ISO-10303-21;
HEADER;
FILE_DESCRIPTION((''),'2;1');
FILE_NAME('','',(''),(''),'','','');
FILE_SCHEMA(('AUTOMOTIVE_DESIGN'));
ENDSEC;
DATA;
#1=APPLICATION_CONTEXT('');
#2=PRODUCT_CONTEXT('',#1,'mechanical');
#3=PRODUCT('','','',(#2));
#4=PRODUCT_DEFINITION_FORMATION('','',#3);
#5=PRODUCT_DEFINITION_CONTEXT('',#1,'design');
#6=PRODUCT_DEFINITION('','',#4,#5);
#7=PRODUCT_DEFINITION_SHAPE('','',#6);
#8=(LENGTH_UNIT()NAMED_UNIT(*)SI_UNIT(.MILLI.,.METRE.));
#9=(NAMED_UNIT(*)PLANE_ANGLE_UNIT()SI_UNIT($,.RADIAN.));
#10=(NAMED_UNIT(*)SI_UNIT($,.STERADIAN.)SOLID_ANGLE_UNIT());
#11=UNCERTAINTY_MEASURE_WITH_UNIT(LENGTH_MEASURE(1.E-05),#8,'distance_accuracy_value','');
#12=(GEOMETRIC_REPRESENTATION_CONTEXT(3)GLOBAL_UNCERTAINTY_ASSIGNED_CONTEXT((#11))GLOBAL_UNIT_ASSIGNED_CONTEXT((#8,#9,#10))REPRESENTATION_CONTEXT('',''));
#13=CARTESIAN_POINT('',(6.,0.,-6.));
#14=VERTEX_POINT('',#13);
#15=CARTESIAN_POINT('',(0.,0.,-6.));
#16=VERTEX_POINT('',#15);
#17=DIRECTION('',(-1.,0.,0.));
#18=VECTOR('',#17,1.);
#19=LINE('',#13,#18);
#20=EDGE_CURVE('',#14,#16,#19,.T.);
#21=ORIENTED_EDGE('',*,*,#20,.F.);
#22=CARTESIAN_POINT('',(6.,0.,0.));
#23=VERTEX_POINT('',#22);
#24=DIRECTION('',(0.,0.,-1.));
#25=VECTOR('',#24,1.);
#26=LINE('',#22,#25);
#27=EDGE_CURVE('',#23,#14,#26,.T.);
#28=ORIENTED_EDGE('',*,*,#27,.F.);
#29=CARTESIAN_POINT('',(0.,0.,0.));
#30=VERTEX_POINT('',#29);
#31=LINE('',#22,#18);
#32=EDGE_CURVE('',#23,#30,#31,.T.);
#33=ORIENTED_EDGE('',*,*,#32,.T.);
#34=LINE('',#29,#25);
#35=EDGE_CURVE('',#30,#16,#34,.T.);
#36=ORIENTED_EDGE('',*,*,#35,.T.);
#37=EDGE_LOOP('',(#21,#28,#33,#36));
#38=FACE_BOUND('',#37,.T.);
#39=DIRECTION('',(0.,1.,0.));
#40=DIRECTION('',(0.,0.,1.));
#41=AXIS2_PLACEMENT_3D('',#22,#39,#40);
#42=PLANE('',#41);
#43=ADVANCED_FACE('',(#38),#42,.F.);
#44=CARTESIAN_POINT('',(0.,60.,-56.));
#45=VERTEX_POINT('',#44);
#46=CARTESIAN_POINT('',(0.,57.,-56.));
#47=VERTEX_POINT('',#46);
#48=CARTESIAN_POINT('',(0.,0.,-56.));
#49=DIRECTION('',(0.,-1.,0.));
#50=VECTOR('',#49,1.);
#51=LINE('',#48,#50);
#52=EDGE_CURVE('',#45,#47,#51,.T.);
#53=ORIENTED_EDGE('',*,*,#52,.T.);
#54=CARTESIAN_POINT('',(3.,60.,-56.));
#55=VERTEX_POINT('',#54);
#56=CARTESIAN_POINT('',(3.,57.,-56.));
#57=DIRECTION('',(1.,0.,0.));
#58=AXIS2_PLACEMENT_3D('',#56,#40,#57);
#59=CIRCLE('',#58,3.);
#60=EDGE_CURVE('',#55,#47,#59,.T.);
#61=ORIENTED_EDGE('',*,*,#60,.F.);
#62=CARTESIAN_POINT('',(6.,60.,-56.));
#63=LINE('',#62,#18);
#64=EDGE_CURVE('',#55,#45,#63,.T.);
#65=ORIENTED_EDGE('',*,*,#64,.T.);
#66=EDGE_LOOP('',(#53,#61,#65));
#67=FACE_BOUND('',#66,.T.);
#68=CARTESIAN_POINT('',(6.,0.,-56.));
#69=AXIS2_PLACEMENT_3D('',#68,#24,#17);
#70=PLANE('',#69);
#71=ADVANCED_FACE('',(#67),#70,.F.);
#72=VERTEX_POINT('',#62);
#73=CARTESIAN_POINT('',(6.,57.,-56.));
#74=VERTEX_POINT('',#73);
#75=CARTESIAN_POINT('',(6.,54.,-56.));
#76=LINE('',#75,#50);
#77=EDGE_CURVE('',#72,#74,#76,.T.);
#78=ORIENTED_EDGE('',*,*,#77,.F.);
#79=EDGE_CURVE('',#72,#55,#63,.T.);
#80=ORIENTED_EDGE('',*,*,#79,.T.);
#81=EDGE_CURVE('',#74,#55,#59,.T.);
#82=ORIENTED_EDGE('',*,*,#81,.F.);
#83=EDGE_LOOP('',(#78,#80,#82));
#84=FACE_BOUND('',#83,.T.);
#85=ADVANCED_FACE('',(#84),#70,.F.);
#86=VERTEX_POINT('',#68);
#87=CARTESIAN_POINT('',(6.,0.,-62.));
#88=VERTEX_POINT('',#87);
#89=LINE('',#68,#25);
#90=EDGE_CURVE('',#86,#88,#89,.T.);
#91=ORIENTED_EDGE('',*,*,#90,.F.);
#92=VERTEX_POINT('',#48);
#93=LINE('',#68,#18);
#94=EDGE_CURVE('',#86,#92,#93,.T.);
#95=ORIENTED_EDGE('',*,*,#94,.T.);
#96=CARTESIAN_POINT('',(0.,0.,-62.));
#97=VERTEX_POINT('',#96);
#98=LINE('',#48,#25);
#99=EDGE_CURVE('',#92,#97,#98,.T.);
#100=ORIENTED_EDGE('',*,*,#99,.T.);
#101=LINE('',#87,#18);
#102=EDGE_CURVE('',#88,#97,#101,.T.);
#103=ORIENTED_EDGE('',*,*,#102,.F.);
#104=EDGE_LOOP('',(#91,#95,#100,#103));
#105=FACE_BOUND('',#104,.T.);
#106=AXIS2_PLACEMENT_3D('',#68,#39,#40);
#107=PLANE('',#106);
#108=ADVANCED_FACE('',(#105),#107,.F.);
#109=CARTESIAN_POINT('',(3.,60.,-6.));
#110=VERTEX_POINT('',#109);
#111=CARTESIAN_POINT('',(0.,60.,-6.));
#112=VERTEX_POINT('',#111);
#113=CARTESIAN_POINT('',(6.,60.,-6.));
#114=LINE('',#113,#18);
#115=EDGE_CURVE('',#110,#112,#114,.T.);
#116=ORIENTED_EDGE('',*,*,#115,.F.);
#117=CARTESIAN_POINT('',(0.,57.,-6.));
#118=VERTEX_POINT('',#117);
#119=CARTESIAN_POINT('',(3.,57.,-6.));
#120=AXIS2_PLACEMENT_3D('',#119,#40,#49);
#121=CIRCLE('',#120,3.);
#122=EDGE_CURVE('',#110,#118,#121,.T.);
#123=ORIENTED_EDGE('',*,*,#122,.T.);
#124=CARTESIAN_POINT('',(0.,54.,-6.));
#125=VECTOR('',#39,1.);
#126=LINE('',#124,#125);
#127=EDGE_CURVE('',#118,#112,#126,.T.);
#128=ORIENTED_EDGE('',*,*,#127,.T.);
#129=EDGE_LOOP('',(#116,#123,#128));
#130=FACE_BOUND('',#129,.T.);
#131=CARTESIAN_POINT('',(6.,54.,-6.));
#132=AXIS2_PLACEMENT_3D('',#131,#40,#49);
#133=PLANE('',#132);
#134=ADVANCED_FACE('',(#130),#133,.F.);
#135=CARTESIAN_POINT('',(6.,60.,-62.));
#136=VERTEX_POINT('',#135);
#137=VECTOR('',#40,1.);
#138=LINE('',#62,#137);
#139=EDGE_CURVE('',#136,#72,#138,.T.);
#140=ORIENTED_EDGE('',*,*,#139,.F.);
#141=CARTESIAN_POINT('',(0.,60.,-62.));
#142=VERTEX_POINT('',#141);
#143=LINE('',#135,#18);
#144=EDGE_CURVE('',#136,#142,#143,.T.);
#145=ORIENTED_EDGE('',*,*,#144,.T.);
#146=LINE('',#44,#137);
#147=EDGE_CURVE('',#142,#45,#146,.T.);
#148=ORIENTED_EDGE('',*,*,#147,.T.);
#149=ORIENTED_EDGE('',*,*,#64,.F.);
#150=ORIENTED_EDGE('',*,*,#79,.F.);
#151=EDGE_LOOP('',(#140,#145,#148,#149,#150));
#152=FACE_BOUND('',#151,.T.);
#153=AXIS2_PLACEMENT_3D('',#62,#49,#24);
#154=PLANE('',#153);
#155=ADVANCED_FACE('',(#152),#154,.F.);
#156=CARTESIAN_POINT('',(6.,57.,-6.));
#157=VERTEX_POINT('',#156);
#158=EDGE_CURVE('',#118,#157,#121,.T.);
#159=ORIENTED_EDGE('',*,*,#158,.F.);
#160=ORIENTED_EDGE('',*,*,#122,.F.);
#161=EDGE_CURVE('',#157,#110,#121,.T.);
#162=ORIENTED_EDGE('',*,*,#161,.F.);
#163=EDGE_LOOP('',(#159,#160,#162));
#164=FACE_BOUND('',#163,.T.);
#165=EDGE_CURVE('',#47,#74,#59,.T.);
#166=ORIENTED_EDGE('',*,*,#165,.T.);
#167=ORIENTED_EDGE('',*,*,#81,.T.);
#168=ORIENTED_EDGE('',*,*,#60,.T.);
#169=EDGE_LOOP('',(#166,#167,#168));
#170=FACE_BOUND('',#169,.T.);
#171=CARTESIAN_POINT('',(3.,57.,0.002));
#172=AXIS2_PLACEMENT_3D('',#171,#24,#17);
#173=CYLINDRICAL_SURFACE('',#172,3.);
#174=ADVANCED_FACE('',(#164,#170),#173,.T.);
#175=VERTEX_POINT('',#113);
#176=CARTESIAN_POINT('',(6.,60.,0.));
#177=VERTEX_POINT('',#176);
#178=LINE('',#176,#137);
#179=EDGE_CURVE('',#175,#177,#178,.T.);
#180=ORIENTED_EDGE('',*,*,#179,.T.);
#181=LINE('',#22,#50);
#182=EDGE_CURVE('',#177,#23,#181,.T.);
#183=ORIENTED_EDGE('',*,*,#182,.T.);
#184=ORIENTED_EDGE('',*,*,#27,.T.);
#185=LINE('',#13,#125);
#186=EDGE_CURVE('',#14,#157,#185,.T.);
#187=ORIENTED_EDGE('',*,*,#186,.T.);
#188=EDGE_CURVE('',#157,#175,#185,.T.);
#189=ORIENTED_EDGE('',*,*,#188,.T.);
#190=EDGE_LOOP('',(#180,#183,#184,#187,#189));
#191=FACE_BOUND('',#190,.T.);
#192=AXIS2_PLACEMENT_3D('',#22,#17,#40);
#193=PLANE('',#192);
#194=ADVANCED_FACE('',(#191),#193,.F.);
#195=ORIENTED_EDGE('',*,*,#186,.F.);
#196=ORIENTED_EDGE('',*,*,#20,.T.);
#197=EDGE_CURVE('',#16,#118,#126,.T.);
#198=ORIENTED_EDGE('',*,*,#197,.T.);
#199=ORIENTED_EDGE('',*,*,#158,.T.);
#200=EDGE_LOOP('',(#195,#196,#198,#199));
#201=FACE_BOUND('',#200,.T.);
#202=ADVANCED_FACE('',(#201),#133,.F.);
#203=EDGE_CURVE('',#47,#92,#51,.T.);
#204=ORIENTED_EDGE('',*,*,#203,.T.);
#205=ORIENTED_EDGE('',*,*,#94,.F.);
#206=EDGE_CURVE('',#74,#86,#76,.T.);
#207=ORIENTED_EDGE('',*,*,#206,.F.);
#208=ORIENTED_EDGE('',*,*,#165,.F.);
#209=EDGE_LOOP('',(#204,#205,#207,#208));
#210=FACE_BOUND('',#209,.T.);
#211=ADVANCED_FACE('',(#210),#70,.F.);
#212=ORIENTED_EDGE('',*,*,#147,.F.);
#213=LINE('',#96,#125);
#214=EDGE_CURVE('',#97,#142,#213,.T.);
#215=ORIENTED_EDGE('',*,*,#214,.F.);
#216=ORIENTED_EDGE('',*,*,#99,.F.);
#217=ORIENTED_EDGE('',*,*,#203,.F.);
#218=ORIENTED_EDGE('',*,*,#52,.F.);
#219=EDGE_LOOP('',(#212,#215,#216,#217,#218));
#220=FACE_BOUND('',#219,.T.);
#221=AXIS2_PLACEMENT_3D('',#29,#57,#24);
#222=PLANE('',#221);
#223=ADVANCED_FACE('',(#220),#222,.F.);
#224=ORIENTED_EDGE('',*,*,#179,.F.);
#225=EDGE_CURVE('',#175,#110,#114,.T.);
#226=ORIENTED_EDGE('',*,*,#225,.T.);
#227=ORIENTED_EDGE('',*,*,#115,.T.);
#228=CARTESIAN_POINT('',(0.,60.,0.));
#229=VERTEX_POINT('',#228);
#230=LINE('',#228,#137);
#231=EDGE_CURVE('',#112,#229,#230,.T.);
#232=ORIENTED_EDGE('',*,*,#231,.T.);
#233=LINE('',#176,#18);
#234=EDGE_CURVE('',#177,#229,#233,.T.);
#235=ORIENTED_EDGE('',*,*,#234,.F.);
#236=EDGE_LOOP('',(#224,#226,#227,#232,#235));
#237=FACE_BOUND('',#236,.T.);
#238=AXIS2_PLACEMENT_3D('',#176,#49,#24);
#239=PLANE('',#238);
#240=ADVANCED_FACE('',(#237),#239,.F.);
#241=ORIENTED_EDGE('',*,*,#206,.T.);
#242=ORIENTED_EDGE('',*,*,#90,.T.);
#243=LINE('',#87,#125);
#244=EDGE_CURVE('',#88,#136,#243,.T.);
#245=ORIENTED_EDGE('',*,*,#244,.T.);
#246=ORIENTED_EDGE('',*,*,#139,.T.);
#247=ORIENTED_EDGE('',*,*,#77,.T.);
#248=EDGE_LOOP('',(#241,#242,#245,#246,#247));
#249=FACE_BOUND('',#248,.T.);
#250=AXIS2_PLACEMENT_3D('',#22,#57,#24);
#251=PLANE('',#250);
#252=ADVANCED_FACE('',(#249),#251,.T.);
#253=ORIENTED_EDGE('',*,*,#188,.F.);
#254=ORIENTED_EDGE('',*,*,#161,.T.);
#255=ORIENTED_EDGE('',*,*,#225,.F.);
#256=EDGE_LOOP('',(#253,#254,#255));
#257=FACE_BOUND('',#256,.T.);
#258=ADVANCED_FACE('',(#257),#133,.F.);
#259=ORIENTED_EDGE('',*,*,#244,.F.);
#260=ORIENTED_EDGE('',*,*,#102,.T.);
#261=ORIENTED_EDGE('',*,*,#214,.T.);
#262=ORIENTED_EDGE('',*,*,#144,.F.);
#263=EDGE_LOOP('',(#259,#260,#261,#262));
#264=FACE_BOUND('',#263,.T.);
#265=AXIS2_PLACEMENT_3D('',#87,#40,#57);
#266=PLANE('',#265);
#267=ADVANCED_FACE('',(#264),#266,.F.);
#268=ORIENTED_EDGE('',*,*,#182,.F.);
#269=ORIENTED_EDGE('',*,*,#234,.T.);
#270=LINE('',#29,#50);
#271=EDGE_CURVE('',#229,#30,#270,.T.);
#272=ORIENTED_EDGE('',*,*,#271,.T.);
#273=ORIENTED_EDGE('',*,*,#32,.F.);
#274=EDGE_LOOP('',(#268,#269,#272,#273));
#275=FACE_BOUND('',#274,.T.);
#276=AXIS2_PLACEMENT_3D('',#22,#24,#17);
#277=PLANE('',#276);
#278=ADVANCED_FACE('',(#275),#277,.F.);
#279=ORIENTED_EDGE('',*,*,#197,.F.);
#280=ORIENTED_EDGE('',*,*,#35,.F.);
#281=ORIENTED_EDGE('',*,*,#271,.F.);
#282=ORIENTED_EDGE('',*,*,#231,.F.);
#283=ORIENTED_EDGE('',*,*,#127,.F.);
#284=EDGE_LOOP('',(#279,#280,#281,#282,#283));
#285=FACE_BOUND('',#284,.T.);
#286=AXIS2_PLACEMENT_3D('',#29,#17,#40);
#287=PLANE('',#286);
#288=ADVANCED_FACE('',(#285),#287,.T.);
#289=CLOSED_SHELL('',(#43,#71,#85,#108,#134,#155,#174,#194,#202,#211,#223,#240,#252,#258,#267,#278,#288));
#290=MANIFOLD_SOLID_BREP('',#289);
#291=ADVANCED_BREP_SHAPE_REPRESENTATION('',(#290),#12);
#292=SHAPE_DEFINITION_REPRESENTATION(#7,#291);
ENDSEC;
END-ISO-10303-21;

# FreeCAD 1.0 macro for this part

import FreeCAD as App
import Part
import Sketcher

V = App.Vector

doc = App.newDocument("Part")
body = doc.addObject("PartDesign::Body", "Body")

sketch1 = body.newObject("Sketcher::SketchObject", "Sketch")
sketch1.AttachmentSupport = (doc.getObject("YZ_Plane"), [""])
sketch1.MapMode = "FlatFace"
sketch1.addGeometry([
    Part.LineSegment(V(0, -56, 0), V(0, -62, 0)),
    Part.LineSegment(V(0, -62, 0), V(60, -62, 0)),
    Part.LineSegment(V(60, -62, 0), V(60, -56, 0)),
    Part.LineSegment(V(60, -56, 0), V(0, -56, 0)),
], False)
sketch1.addConstraint([
    Sketcher.Constraint("Coincident", 0, 2, 1, 1),
    Sketcher.Constraint("Coincident", 1, 2, 2, 1),
    Sketcher.Constraint("Coincident", 2, 2, 3, 1),
    Sketcher.Constraint("Coincident", 3, 2, 0, 1),
    Sketcher.Constraint("Vertical", 0),
    Sketcher.Constraint("Horizontal", 1),
    Sketcher.Constraint("Vertical", 2),
    Sketcher.Constraint("Horizontal", 3),
    Sketcher.Constraint("PointOnObject", 0, 2, -2),
    Sketcher.Constraint("DistanceX", 1, 1, 1, 2, 60.0),
    Sketcher.Constraint("DistanceY", 0, 2, 0, 1, 6.0),
    Sketcher.Constraint("DistanceY", 0, 2, -1, 1, 62.0),
])
pad1 = body.newObject("PartDesign::Pad", "Pad")
pad1.Profile = sketch1
pad1.Length = 6
body2 = doc.addObject("PartDesign::Body", "Body001")
body2.AllowCompound = True

sketch2 = body2.newObject("Sketcher::SketchObject", "Sketch001")
sketch2.AttachmentSupport = (doc.getObject("YZ_Plane001"), [""])
sketch2.MapMode = "FlatFace"
sketch2.addGeometry([
    Part.LineSegment(V(0, 0, 0), V(0, -6, 0)),
    Part.LineSegment(V(0, -6, 0), V(60, -6, 0)),
    Part.LineSegment(V(60, -6, 0), V(60, 0, 0)),
    Part.LineSegment(V(60, 0, 0), V(0, 0, 0)),
], False)
sketch2.addConstraint([
    Sketcher.Constraint("Coincident", 0, 2, 1, 1),
    Sketcher.Constraint("Coincident", 1, 2, 2, 1),
    Sketcher.Constraint("Coincident", 2, 2, 3, 1),
    Sketcher.Constraint("Coincident", 3, 2, 0, 1),
    Sketcher.Constraint("Vertical", 0),
    Sketcher.Constraint("Horizontal", 1),
    Sketcher.Constraint("Vertical", 2),
    Sketcher.Constraint("Horizontal", 3),
    Sketcher.Constraint("Coincident", 3, 2, -1, 1),
    Sketcher.Constraint("DistanceX", 1, 1, 1, 2, 60.0),
    Sketcher.Constraint("DistanceY", 0, 2, 0, 1, 6.0),
])
pad2 = body2.newObject("PartDesign::Pad", "Pad001")
pad2.Profile = sketch2
pad2.Length = 6
doc.recompute()

boolean = body2.newObject("PartDesign::Boolean", "Boolean")
boolean.Type = "Fuse"
boolean.addObjects([body])

sketch3 = body2.newObject("Sketcher::SketchObject", "Sketch002")
sketch3.AttachmentSupport = (doc.getObject("XY_Plane001"), [""])
sketch3.MapMode = "FlatFace"
sketch3.AttachmentOffset = App.Placement(V(0, 0, -56), App.Rotation())
sketch3.addGeometry(Part.Circle(V(3, 57, 0), V(0, 0, 1), 3), False)
sketch3.addConstraint([
    Sketcher.Constraint("Diameter", 0, 6.0),
    Sketcher.Constraint("DistanceX", -1, 1, 0, 3, 3.0),
    Sketcher.Constraint("DistanceY", -1, 1, 0, 3, 57.0),
])
pad3 = body2.newObject("PartDesign::Pad", "Pad002")
pad3.Profile = sketch3
pad3.Type = "UpToFirst"

doc.recompute()
